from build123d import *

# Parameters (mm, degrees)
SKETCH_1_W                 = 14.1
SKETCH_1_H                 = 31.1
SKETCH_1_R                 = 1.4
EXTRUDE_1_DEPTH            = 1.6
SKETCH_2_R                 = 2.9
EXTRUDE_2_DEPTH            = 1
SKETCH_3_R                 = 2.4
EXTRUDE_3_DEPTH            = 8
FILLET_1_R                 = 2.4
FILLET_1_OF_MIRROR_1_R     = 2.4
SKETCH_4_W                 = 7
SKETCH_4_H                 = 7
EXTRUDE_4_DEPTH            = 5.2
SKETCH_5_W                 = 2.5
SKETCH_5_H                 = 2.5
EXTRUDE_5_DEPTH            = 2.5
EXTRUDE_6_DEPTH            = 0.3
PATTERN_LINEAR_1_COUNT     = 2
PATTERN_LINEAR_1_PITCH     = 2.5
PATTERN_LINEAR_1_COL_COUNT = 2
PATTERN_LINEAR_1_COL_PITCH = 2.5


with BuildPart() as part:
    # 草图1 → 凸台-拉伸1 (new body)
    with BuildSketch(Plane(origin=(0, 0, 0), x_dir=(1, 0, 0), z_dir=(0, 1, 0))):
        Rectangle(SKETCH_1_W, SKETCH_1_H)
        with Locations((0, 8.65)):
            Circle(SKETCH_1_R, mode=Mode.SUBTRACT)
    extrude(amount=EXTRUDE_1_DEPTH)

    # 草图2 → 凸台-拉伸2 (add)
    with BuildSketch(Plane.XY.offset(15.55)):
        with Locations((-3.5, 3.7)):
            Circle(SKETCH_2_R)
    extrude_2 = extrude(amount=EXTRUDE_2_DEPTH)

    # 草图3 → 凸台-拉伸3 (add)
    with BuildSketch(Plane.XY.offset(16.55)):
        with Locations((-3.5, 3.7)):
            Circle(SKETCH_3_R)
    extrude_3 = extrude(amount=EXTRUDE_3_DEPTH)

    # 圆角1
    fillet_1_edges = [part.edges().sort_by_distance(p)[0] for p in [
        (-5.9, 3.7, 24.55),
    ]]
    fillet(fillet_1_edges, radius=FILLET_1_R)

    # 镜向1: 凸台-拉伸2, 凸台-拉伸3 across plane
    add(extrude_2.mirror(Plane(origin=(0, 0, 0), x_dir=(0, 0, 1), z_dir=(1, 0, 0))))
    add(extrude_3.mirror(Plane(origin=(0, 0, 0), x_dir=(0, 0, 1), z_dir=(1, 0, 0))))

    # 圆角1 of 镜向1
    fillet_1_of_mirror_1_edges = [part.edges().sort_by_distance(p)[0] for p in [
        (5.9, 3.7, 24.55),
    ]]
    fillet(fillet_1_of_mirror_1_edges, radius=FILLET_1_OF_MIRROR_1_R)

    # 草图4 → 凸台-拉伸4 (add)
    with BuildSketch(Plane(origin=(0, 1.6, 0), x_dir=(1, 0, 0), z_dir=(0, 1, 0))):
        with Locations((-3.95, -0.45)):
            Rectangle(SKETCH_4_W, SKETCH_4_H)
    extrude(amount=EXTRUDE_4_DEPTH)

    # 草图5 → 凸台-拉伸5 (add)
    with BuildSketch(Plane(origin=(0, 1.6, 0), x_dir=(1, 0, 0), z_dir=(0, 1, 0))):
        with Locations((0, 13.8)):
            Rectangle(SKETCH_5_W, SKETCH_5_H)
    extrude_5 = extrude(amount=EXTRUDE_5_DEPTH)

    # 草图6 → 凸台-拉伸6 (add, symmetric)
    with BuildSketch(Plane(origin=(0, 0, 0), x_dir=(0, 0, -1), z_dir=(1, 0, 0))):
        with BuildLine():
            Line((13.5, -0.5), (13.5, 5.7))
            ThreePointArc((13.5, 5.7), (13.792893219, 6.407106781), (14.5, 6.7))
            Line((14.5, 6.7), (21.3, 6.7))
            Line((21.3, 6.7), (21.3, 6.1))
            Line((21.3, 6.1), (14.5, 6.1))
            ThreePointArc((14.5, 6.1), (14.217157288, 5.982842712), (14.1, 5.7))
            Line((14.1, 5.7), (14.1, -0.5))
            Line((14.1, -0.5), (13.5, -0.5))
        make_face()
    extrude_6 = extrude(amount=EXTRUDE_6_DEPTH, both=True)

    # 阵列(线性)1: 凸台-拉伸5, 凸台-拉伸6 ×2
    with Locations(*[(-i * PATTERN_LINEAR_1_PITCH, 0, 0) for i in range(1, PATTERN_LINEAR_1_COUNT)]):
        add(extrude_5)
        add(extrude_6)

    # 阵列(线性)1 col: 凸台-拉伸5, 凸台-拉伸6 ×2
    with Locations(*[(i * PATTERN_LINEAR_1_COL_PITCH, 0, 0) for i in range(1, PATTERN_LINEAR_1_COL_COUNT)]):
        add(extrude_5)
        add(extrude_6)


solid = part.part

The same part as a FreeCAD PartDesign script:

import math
import FreeCAD as App
import Part
import Sketcher
from FreeCAD import Vector


def edges_at(feature, points):
    """Names of the edges that pass closest to the given points."""
    edges = feature.Shape.Edges
    near = lambda p: min(range(len(edges)), key=lambda i: edges[i].distToShape(Part.Vertex(*p))[0])
    return sorted({f"Edge{near(p) + 1}" for p in points})


def add_polygon(sketch, points):
    """Adds a closed chain of lines whose ends are joined by coincident constraints."""
    first, n = sketch.GeometryCount, len(points)
    for a, b in zip(points, points[1:] + points[:1]):
        sketch.addGeometry(Part.LineSegment(App.Vector(*a, 0), App.Vector(*b, 0)), False)
    for i in range(n):
        sketch.addConstraint(Sketcher.Constraint("Coincident", first + i, 2, first + (i + 1) % n, 1))

doc = App.newDocument("Part")
body = doc.addObject("PartDesign::Body", "Body")

# Sketch on XZ plane
sketch1 = doc.addObject("Sketcher::SketchObject", "Sketch")
body.addObject(sketch1)
sketch1.AttachmentSupport = (doc.XZ_Plane, [""])
sketch1.MapMode = "FlatFace"
add_polygon(sketch1, [(-7, -15.6), (-7, 15.6), (7, 15.6), (7, -15.6)])  # lines 0-3
sketch1.addGeometry(Part.Circle(Vector(0, -8.7, 0), Vector(0, 0, 1), 1.4), False)  # 4
sketch1.addConstraint(Sketcher.Constraint("Vertical", 0))
sketch1.addConstraint(Sketcher.Constraint("Horizontal", 1))
sketch1.addConstraint(Sketcher.Constraint("Vertical", 2))
sketch1.addConstraint(Sketcher.Constraint("Horizontal", 3))
sketch1.addConstraint(Sketcher.Constraint("Symmetric", 0, 2, 2, 2, -1, 1))
sketch1.addConstraint(Sketcher.Constraint("PointOnObject", 4, 3, -2))
sketch1.addConstraint(Sketcher.Constraint("Diameter", 4, 2.8))
sketch1.addConstraint(Sketcher.Constraint("DistanceX", 1, 1, 1, 2, 14.1))
sketch1.addConstraint(Sketcher.Constraint("DistanceY", 0, 1, 0, 2, 31.1))
sketch1.addConstraint(Sketcher.Constraint("DistanceY", 4, 3, 0, 2, 24.2))
pad1 = doc.addObject("PartDesign::Pad", "Pad")
body.addObject(pad1)
pad1.Profile = sketch1
pad1.Length = 1.6
pad1.Reversed = True

# Sketch on XY plane
sketch2 = doc.addObject("Sketcher::SketchObject", "Sketch001")
body.addObject(sketch2)
sketch2.AttachmentSupport = (doc.XY_Plane, [""])
sketch2.MapMode = "FlatFace"
sketch2.AttachmentOffset = App.Placement(Vector(0, 0, 15.55), App.Rotation())
sketch2.addGeometry(Part.Circle(Vector(-3.5, 3.7, 0), Vector(0, 0, 1), 2.9), False)
sketch2.addConstraint(Sketcher.Constraint("Diameter", 0, 5.8))
sketch2.addConstraint(Sketcher.Constraint("DistanceX", 0, 3, -1, 1, 3.5))
sketch2.addConstraint(Sketcher.Constraint("DistanceY", -1, 1, 0, 3, 3.7))
pad2 = doc.addObject("PartDesign::Pad", "Pad001")
body.addObject(pad2)
pad2.Profile = sketch2
pad2.Length = 1

# Sketch on XY plane
sketch3 = doc.addObject("Sketcher::SketchObject", "Sketch002")
body.addObject(sketch3)
sketch3.AttachmentSupport = (doc.XY_Plane, [""])
sketch3.MapMode = "FlatFace"
sketch3.AttachmentOffset = App.Placement(Vector(0, 0, 16.55), App.Rotation())
sketch3.addGeometry(Part.Circle(Vector(-3.5, 3.7, 0), Vector(0, 0, 1), 2.4), False)
sketch3.addConstraint(Sketcher.Constraint("Diameter", 0, 4.8))
sketch3.addConstraint(Sketcher.Constraint("DistanceX", 0, 3, -1, 1, 3.5))
sketch3.addConstraint(Sketcher.Constraint("DistanceY", -1, 1, 0, 3, 3.7))
pad3 = doc.addObject("PartDesign::Pad", "Pad002")
body.addObject(pad3)
pad3.Profile = sketch3
pad3.Length = 8
doc.recompute()

fillet = doc.addObject("PartDesign::Fillet", "Fillet")
body.addObject(fillet)
fillet.Base = (pad3, edges_at(pad3, [(-5.9, 3.7, 24.55)]))
fillet.Radius = 2.4
doc.recompute()

mirrored = doc.addObject("PartDesign::Mirrored", "Mirrored")
body.addObject(mirrored)
mirrored.Originals = [pad2, pad3]
mirrored.MirrorPlane = (doc.YZ_Plane, [""])
body.Tip = mirrored
doc.recompute()

fillet2 = doc.addObject("PartDesign::Fillet", "Fillet001")
body.addObject(fillet2)
fillet2.Base = (mirrored, edges_at(mirrored, [(5.9, 3.7, 24.55)]))
fillet2.Radius = 2.4

# Sketch on XZ plane
sketch4 = doc.addObject("Sketcher::SketchObject", "Sketch003")
body.addObject(sketch4)
sketch4.AttachmentSupport = (doc.XZ_Plane, [""])
sketch4.MapMode = "FlatFace"
sketch4.AttachmentOffset = App.Placement(Vector(0, 0, -1.6), App.Rotation())
add_polygon(sketch4, [(-7, -3), (-7, 4), (0, 4), (0, -3)])  # lines 0-3
sketch4.addConstraint(Sketcher.Constraint("Vertical", 0))
sketch4.addConstraint(Sketcher.Constraint("Horizontal", 1))
sketch4.addConstraint(Sketcher.Constraint("Vertical", 2))
sketch4.addConstraint(Sketcher.Constraint("Horizontal", 3))
sketch4.addConstraint(Sketcher.Constraint("Equal", 3, 0))
sketch4.addConstraint(Sketcher.Constraint("DistanceX", 1, 1, 1, 2, 7.0))
sketch4.addConstraint(Sketcher.Constraint("DistanceX", 0, 2, -1, 1, 7.45))
sketch4.addConstraint(Sketcher.Constraint("DistanceY", -1, 1, 0, 2, 3.95))
pad4 = doc.addObject("PartDesign::Pad", "Pad003")
body.addObject(pad4)
pad4.Profile = sketch4
pad4.Length = 5.2
pad4.Reversed = True

# Sketch on XZ plane
sketch5 = doc.addObject("Sketcher::SketchObject", "Sketch004")
body.addObject(sketch5)
sketch5.AttachmentSupport = (doc.XZ_Plane, [""])
sketch5.MapMode = "FlatFace"
sketch5.AttachmentOffset = App.Placement(Vector(0, 0, -1.6), App.Rotation())
add_polygon(sketch5, [(-1.2, -15.1), (-1.2, -12.6), (1.2, -12.6), (1.2, -15.1)])  # lines 0-3
sketch5.addConstraint(Sketcher.Constraint("Vertical", 0))
sketch5.addConstraint(Sketcher.Constraint("Horizontal", 1))
sketch5.addConstraint(Sketcher.Constraint("Vertical", 2))
sketch5.addConstraint(Sketcher.Constraint("Horizontal", 3))
sketch5.addConstraint(Sketcher.Constraint("Equal", 3, 0))
sketch5.addConstraint(Sketcher.Constraint("DistanceX", 1, 1, 1, 2, 2.5))
sketch5.addConstraint(Sketcher.Constraint("DistanceX", 0, 2, -1, 1, 1.25))
sketch5.addConstraint(Sketcher.Constraint("DistanceY", 0, 2, -1, 1, 12.55))
pad5 = doc.addObject("PartDesign::Pad", "Pad004")
body.addObject(pad5)
pad5.Profile = sketch5
pad5.Length = 2.5
pad5.Reversed = True

# Sketch on YZ plane
sketch6 = doc.addObject("Sketcher::SketchObject", "Sketch005")
body.addObject(sketch6)
sketch6.AttachmentSupport = (doc.YZ_Plane, [""])
sketch6.MapMode = "FlatFace"
sketch6.addGeometry(Part.LineSegment(Vector(5.7, -13.5, 0), Vector(-0.5, -13.5, 0)), False)
sketch6.addGeometry(Part.LineSegment(Vector(-0.5, -13.5, 0), Vector(-0.5, -14.1, 0)), False)
sketch6.addGeometry(Part.LineSegment(Vector(-0.5, -14.1, 0), Vector(5.7, -14.1, 0)), False)
sketch6.addGeometry(Part.ArcOfCircle(Part.Circle(Vector(5.7, -14.5, 0), Vector(0, 0, 1), 0.4), math.radians(0), math.radians(90)), False)
sketch6.addGeometry(Part.LineSegment(Vector(6.1, -14.5, 0), Vector(6.1, -21.3, 0)), False)
sketch6.addGeometry(Part.LineSegment(Vector(6.1, -21.3, 0), Vector(6.7, -21.3, 0)), False)
sketch6.addGeometry(Part.LineSegment(Vector(6.7, -21.3, 0), Vector(6.7, -14.5, 0)), False)
sketch6.addGeometry(Part.ArcOfCircle(Part.Circle(Vector(5.7, -14.5, 0), Vector(0, 0, 1), 1), math.radians(0), math.radians(90)), False)
sketch6.addConstraint(Sketcher.Constraint("Coincident", 0, 2, 1, 1))
sketch6.addConstraint(Sketcher.Constraint("Coincident", 1, 2, 2, 1))
sketch6.addConstraint(Sketcher.Constraint("Tangent", 2, 2, 3, 2))
sketch6.addConstraint(Sketcher.Constraint("Tangent", 3, 1, 4, 1))
sketch6.addConstraint(Sketcher.Constraint("Coincident", 4, 2, 5, 1))
sketch6.addConstraint(Sketcher.Constraint("Coincident", 5, 2, 6, 1))
sketch6.addConstraint(Sketcher.Constraint("Tangent", 6, 2, 7, 1))
sketch6.addConstraint(Sketcher.Constraint("Tangent", 7, 2, 0, 1))
sketch6.addConstraint(Sketcher.Constraint("Horizontal", 0))
sketch6.addConstraint(Sketcher.Constraint("Vertical", 1))
sketch6.addConstraint(Sketcher.Constraint("Horizontal", 2))
sketch6.addConstraint(Sketcher.Constraint("Vertical", 4))
sketch6.addConstraint(Sketcher.Constraint("Horizontal", 5))
sketch6.addConstraint(Sketcher.Constraint("Vertical", 6))
sketch6.addConstraint(Sketcher.Constraint("Coincident", 7, 3, 3, 3))
sketch6.addConstraint(Sketcher.Constraint("Radius", 7, 1.0))
sketch6.addConstraint(Sketcher.Constraint("Radius", 3, 0.4))
sketch6.addConstraint(Sketcher.Constraint("DistanceX", 0, 2, 0, 1, 6.2))
sketch6.addConstraint(Sketcher.Constraint("DistanceY", 4, 2, 4, 1, 6.8))
sketch6.addConstraint(Sketcher.Constraint("DistanceX", -1, 1, 3, 3, 5.7))
sketch6.addConstraint(Sketcher.Constraint("DistanceY", 3, 3, -1, 1, 14.5))
pad6 = doc.addObject("PartDesign::Pad", "Pad005")
body.addObject(pad6)
pad6.Profile = sketch6
pad6.Length = 0.6
pad6.Midplane = True
doc.recompute()

linearpattern = doc.addObject("PartDesign::LinearPattern", "LinearPattern")
body.addObject(linearpattern)
linearpattern.Originals = [pad5, pad6]
linearpattern.Direction = (doc.X_Axis, [""])
linearpattern.Mode = "offset"
linearpattern.Offset = 2.5
linearpattern.Occurrences = 2
linearpattern.Reversed = True
body.Tip = linearpattern
doc.recompute()

linearpattern2 = doc.addObject("PartDesign::LinearPattern", "LinearPattern001")
body.addObject(linearpattern2)
linearpattern2.Originals = [pad5, pad6]
linearpattern2.Direction = (doc.X_Axis, [""])
linearpattern2.Mode = "offset"
linearpattern2.Offset = 2.5
linearpattern2.Occurrences = 2
body.Tip = linearpattern2

doc.recompute()
